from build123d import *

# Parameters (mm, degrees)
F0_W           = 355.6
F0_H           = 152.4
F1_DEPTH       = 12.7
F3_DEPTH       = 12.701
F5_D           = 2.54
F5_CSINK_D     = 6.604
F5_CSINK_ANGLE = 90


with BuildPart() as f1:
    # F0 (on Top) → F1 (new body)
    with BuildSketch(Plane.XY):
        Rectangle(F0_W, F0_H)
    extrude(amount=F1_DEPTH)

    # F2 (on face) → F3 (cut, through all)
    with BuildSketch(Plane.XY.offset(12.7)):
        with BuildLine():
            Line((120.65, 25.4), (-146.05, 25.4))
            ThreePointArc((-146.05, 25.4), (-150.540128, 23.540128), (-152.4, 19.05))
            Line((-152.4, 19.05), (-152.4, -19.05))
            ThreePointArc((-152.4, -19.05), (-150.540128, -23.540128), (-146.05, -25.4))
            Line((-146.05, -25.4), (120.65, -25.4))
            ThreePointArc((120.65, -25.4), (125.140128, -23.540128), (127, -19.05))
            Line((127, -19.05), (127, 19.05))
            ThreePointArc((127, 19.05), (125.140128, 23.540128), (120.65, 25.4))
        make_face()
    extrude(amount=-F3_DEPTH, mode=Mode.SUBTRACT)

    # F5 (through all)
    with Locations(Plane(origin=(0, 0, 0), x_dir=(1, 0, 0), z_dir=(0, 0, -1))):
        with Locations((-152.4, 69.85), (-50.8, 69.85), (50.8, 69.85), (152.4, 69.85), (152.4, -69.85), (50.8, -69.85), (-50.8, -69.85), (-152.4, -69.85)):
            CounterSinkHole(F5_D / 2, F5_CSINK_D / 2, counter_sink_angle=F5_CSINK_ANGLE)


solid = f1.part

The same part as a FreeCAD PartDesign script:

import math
import FreeCAD as App
import Part
import Sketcher

V = App.Vector
Q = App.Units.Quantity


def add_polygon(sketch, points):
    """Adds a closed chain of lines whose ends are joined by coincident constraints."""
    first, n = sketch.GeometryCount, len(points)
    for a, b in zip(points, points[1:] + points[:1]):
        sketch.addGeometry(Part.LineSegment(App.Vector(*a, 0), App.Vector(*b, 0)), False)
    for i in range(n):
        sketch.addConstraint(Sketcher.Constraint("Coincident", first + i, 2, first + (i + 1) % n, 1))

doc = App.newDocument("Part")
body = doc.addObject("PartDesign::Body", "Body")

sketch1 = body.newObject("Sketcher::SketchObject", "Sketch")
sketch1.AttachmentSupport = (doc.getObject("XY_Plane"), [""])
sketch1.MapMode = "FlatFace"
add_polygon(sketch1, [(-178, 76), (-178, -76), (178, -76), (178, 76)])
sketch1.addConstraint([
    Sketcher.Constraint("Vertical", 0),
    Sketcher.Constraint("Horizontal", 1),
    Sketcher.Constraint("Vertical", 2),
    Sketcher.Constraint("Horizontal", 3),
    Sketcher.Constraint("Symmetric", 0, 2, 2, 2, -1, 1),
    Sketcher.Constraint("DistanceX", 1, 1, 1, 2, Q("14 in")),
    Sketcher.Constraint("DistanceY", 0, 2, 0, 1, Q("6 in")),
])
pad1 = body.newObject("PartDesign::Pad", "Pad")
pad1.Profile = sketch1
pad1.Length = Q("0.5 in")

sketch2 = body.newObject("Sketcher::SketchObject", "Sketch001")
sketch2.AttachmentSupport = (doc.getObject("XY_Plane"), [""])
sketch2.MapMode = "FlatFace"
sketch2.AttachmentOffset = App.Placement(V(0, 0, 0.5 * 25.4), App.Rotation())
sketch2.addGeometry([
    Part.LineSegment(V(121, 25, 0), V(-146, 25, 0)),
    Part.ArcOfCircle(Part.Circle(V(-146, 19, 0), V(0, 0, 1), 6), math.radians(90), math.radians(180)),
    Part.LineSegment(V(-152, 19, 0), V(-152, -19, 0)),
    Part.ArcOfCircle(Part.Circle(V(-146, -19, 0), V(0, 0, 1), 6), math.radians(-180), math.radians(-90)),
    Part.LineSegment(V(-146, -25, 0), V(121, -25, 0)),
    Part.ArcOfCircle(Part.Circle(V(121, -19, 0), V(0, 0, 1), 6), math.radians(-90), math.radians(0)),
    Part.LineSegment(V(127, -19, 0), V(127, 19, 0)),
    Part.ArcOfCircle(Part.Circle(V(121, 19, 0), V(0, 0, 1), 6), math.radians(0), math.radians(90)),
], False)
sketch2.addConstraint([
    Sketcher.Constraint("Tangent", 0, 2, 1, 1),
    Sketcher.Constraint("Tangent", 1, 2, 2, 1),
    Sketcher.Constraint("Tangent", 2, 2, 3, 1),
    Sketcher.Constraint("Tangent", 3, 2, 4, 1),
    Sketcher.Constraint("Tangent", 4, 2, 5, 1),
    Sketcher.Constraint("Tangent", 5, 2, 6, 1),
    Sketcher.Constraint("Tangent", 6, 2, 7, 1),
    Sketcher.Constraint("Tangent", 7, 2, 0, 1),
    Sketcher.Constraint("Horizontal", 0),
    Sketcher.Constraint("Vertical", 2),
    Sketcher.Constraint("Horizontal", 4),
    Sketcher.Constraint("Vertical", 6),
    Sketcher.Constraint("Equal", 1, 3),
    Sketcher.Constraint("Equal", 3, 5),
    Sketcher.Constraint("Equal", 5, 7),
    Sketcher.Constraint("Radius", 1, Q("0.25 in")),
    Sketcher.Constraint("DistanceX", 0, 2, 0, 1, Q("10.5 in")),
    Sketcher.Constraint("DistanceY", 2, 2, 2, 1, Q("1.5 in")),
    Sketcher.Constraint("DistanceY", -1, 1, 0, 2, Q("1 in")),
    Sketcher.Constraint("DistanceX", 1, 2, -1, 1, Q("6 in")),
])
pocket1 = body.newObject("PartDesign::Pocket", "Pocket")
pocket1.Profile = sketch2
pocket1.Type = "ThroughAll"

sketch3 = body.newObject("Sketcher::SketchObject", "Sketch002")
sketch3.AttachmentSupport = (doc.getObject("XY_Plane"), [""])
sketch3.MapMode = "FlatFace"
sketch3.addGeometry([
    Part.Circle(V(-152.4, -69.8, 0), V(0, 0, 1), 1.3),
    Part.Circle(V(-50.8, -69.8, 0), V(0, 0, 1), 1.3),
    Part.Circle(V(50.8, -69.8, 0), V(0, 0, 1), 1.3),
    Part.Circle(V(152.4, -69.8, 0), V(0, 0, 1), 1.3),
    Part.Circle(V(152.4, 69.8, 0), V(0, 0, 1), 1.3),
    Part.Circle(V(50.8, 69.8, 0), V(0, 0, 1), 1.3),
    Part.Circle(V(-50.8, 69.8, 0), V(0, 0, 1), 1.3),
    Part.Circle(V(-152.4, 69.8, 0), V(0, 0, 1), 1.3),
], False)
sketch3.addConstraint([
    Sketcher.Constraint("Equal", 0, 1),
    Sketcher.Constraint("Equal", 1, 2),
    Sketcher.Constraint("Equal", 2, 3),
    Sketcher.Constraint("Equal", 3, 4),
    Sketcher.Constraint("Equal", 4, 5),
    Sketcher.Constraint("Equal", 5, 6),
    Sketcher.Constraint("Equal", 6, 7),
    Sketcher.Constraint("Symmetric", 0, 3, 4, 3, -1, 1),
    Sketcher.Constraint("Symmetric", 1, 3, 5, 3, -1, 1),
    Sketcher.Constraint("Symmetric", 2, 3, 6, 3, -1, 1),
    Sketcher.Constraint("Symmetric", 3, 3, 7, 3, -1, 1),
    Sketcher.Constraint("Symmetric", 1, 3, 2, 3, -2),
    Sketcher.Constraint("Symmetric", 0, 3, 3, 3, -2),
    Sketcher.Constraint("Horizontal", 0, 3, 1, 3),
    Sketcher.Constraint("Diameter", 0, Q("0.1 in")),
    Sketcher.Constraint("DistanceX", 0, 3, -1, 1, Q("6 in")),
    Sketcher.Constraint("DistanceX", 1, 3, -1, 1, Q("2 in")),
    Sketcher.Constraint("DistanceY", 3, 3, 4, 3, Q("5.5 in")),
])
doc.recompute()
hole = body.newObject("PartDesign::Hole", "Hole")
hole.Profile = sketch3
hole.ThreadType = "None"
hole.Diameter = Q("0.1 in")
hole.DepthType = "ThroughAll"
hole.HoleCutType = "Countersink"
hole.HoleCutDiameter = Q("0.26 in")
hole.HoleCutCountersinkAngle = 90
hole.Reversed = True

doc.recompute()
